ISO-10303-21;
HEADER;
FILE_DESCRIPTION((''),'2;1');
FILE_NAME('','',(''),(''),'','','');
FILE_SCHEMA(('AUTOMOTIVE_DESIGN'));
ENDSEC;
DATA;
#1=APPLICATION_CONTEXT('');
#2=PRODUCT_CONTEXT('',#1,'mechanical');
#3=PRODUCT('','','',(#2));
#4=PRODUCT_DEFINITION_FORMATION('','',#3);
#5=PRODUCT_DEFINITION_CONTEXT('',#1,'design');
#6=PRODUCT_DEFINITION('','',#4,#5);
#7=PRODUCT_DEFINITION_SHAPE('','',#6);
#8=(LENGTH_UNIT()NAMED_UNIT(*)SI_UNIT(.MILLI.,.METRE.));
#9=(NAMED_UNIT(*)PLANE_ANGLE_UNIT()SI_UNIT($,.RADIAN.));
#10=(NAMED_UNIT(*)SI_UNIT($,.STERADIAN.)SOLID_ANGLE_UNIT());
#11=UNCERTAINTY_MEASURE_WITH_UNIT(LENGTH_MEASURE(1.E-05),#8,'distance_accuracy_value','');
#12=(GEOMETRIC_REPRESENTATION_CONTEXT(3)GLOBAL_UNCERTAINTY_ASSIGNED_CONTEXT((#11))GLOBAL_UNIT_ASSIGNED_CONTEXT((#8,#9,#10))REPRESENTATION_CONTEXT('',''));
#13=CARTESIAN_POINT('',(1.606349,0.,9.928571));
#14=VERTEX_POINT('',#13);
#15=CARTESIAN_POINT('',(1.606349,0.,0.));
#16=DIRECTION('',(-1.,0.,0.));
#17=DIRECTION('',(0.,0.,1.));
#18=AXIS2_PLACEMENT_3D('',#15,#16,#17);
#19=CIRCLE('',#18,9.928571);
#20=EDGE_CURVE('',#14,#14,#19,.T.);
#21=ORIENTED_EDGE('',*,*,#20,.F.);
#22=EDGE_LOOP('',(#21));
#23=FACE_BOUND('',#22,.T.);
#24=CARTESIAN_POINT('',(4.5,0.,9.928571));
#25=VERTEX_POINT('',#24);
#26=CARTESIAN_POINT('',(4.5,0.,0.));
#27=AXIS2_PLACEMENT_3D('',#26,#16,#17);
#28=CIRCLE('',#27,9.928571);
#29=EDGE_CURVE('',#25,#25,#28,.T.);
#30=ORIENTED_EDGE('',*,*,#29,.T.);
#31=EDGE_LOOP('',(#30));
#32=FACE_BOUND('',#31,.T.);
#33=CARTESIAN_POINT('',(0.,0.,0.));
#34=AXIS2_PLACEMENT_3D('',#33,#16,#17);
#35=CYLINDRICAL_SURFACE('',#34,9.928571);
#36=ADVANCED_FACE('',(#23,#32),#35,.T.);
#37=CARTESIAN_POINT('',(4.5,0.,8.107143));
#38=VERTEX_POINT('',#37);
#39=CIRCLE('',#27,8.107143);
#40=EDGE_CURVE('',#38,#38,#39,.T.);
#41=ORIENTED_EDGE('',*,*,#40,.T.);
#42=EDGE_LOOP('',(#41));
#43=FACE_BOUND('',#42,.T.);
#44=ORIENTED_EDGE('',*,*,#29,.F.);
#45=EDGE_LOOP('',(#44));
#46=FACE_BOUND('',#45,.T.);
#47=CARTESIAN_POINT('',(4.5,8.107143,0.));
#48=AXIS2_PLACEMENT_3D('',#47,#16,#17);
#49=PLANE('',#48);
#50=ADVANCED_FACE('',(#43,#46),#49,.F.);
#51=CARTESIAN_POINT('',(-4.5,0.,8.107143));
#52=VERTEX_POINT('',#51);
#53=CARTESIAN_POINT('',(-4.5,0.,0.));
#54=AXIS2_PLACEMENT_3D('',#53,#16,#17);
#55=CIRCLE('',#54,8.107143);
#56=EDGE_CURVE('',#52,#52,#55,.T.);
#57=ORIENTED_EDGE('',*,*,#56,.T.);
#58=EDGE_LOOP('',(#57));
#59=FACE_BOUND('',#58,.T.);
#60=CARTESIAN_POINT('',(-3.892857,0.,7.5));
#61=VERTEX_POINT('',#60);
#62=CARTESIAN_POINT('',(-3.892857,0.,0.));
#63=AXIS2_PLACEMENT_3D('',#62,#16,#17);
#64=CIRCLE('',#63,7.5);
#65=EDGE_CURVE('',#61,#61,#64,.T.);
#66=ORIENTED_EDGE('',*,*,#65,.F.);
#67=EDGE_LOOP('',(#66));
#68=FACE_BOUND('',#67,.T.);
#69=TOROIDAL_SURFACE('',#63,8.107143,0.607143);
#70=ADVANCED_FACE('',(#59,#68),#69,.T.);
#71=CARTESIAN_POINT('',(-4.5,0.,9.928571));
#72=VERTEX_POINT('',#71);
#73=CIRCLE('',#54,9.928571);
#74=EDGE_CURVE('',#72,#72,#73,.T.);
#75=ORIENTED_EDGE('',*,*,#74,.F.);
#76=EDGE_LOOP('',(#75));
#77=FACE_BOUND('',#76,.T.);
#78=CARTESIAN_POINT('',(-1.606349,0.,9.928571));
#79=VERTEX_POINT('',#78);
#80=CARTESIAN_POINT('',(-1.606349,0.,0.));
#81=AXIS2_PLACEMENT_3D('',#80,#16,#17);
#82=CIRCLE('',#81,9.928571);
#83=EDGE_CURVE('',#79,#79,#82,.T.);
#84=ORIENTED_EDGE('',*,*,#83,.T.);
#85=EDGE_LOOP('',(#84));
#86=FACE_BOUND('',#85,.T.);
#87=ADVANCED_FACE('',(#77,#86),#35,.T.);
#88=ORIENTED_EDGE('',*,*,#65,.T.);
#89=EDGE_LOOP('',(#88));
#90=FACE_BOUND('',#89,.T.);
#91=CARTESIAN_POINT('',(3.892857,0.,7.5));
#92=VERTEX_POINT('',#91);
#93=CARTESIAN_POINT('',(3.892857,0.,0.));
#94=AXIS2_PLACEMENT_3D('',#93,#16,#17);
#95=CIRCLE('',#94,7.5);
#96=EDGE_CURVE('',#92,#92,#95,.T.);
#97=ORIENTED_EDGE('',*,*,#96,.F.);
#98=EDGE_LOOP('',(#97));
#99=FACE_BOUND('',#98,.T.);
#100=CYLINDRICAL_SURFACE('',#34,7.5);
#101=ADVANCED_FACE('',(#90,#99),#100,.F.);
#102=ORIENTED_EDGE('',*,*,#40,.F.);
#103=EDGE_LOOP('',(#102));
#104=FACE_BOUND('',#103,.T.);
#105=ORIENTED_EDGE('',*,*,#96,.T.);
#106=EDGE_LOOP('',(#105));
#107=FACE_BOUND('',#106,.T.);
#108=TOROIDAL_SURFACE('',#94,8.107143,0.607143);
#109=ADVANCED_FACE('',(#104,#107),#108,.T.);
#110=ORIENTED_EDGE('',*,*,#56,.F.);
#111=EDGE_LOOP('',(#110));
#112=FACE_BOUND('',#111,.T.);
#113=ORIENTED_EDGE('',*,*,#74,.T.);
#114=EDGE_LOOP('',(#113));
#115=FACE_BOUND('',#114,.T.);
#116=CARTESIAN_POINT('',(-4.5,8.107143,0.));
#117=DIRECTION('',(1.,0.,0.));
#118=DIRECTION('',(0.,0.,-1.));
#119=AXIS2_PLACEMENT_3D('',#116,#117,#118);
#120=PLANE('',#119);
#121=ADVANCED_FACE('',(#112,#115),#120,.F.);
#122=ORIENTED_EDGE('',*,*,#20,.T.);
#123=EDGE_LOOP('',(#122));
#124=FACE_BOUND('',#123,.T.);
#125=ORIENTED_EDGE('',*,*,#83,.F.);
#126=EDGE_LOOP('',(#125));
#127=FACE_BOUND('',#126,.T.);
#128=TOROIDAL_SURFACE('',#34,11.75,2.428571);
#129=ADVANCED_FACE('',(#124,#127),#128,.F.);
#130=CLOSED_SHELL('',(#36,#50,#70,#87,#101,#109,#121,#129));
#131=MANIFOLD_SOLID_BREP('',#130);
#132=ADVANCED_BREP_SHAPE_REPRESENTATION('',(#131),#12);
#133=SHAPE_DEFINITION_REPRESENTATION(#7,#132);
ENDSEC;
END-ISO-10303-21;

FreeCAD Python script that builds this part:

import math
import FreeCAD as App
import Part
import Sketcher
from FreeCAD import Vector
Q = App.Units.Quantity

doc = App.newDocument("Part")
body = doc.addObject("PartDesign::Body", "Body")

# Sketch on XY plane
sketch1 = body.newObject("Sketcher::SketchObject", "Sketch")
sketch1.AttachmentSupport = (doc.getObject("XY_Plane"), [""])
sketch1.MapMode = "FlatFace"
sketch1.addGeometry([
    Part.LineSegment(Vector(-3.9, 7.5, 0), Vector(3.9, 7.5, 0)),  # 0
    Part.ArcOfCircle(Part.Circle(Vector(3.9, 8.1, 0), Vector(0, 0, 1), 0.6), math.radians(-90), math.radians(0)),  # 1
    Part.LineSegment(Vector(4.5, 8.1, 0), Vector(4.5, 9.9, 0)),  # 2
    Part.LineSegment(Vector(4.5, 9.9, 0), Vector(1.6, 9.9, 0)),  # 3
    Part.ArcOfCircle(Part.Circle(Vector(0, 11.7, 0), Vector(0, 0, 1), 2.4), math.radians(-131), math.radians(-49)),  # 4
    Part.LineSegment(Vector(-1.6, 9.9, 0), Vector(-4.5, 9.9, 0)),  # 5
    Part.LineSegment(Vector(-4.5, 9.9, 0), Vector(-4.5, 8.1, 0)),  # 6
    Part.ArcOfCircle(Part.Circle(Vector(-3.9, 8.1, 0), Vector(0, 0, 1), 0.6), math.radians(-180), math.radians(-90)),  # 7
], False)
sketch1.addConstraint([
    Sketcher.Constraint("Tangent", 0, 2, 1, 1),
    Sketcher.Constraint("Tangent", 1, 2, 2, 1),
    Sketcher.Constraint("Coincident", 2, 2, 3, 1),
    Sketcher.Constraint("Coincident", 3, 2, 4, 2),
    Sketcher.Constraint("Coincident", 4, 1, 5, 1),
    Sketcher.Constraint("Coincident", 5, 2, 6, 1),
    Sketcher.Constraint("Tangent", 6, 2, 7, 1),
    Sketcher.Constraint("Tangent", 7, 2, 0, 1),
    Sketcher.Constraint("Horizontal", 0),
    Sketcher.Constraint("Vertical", 2),
    Sketcher.Constraint("Horizontal", 3),
    Sketcher.Constraint("Horizontal", 5),
    Sketcher.Constraint("Vertical", 6),
    Sketcher.Constraint("Equal", 1, 7),
    Sketcher.Constraint("Symmetric", 3, 2, 4, 1, -2),
    Sketcher.Constraint("Equal", 3, 5),
    Sketcher.Constraint("DistanceY", -1, 1, 0, 2, Q("7.5 mm")),
    Sketcher.Constraint("DistanceX", -1, 1, 1, 2, Q("4.5 mm")),
    Sketcher.Constraint("DistanceY", -1, 1, 4, 3, Q("11.75 mm")),
    Sketcher.Constraint("Radius", 4, Q("2.428571 mm")),
    Sketcher.Constraint("Radius", 1, Q("0.607143 mm")),
    Sketcher.Constraint("DistanceX", 3, 2, 3, 1, Q("2.893651 mm")),
])
revolution = body.newObject("PartDesign::Revolution", "Revolution")
revolution.Profile = sketch1
revolution.ReferenceAxis = (sketch1, ["H_Axis"])
revolution.Angle = 360

doc.recompute()
